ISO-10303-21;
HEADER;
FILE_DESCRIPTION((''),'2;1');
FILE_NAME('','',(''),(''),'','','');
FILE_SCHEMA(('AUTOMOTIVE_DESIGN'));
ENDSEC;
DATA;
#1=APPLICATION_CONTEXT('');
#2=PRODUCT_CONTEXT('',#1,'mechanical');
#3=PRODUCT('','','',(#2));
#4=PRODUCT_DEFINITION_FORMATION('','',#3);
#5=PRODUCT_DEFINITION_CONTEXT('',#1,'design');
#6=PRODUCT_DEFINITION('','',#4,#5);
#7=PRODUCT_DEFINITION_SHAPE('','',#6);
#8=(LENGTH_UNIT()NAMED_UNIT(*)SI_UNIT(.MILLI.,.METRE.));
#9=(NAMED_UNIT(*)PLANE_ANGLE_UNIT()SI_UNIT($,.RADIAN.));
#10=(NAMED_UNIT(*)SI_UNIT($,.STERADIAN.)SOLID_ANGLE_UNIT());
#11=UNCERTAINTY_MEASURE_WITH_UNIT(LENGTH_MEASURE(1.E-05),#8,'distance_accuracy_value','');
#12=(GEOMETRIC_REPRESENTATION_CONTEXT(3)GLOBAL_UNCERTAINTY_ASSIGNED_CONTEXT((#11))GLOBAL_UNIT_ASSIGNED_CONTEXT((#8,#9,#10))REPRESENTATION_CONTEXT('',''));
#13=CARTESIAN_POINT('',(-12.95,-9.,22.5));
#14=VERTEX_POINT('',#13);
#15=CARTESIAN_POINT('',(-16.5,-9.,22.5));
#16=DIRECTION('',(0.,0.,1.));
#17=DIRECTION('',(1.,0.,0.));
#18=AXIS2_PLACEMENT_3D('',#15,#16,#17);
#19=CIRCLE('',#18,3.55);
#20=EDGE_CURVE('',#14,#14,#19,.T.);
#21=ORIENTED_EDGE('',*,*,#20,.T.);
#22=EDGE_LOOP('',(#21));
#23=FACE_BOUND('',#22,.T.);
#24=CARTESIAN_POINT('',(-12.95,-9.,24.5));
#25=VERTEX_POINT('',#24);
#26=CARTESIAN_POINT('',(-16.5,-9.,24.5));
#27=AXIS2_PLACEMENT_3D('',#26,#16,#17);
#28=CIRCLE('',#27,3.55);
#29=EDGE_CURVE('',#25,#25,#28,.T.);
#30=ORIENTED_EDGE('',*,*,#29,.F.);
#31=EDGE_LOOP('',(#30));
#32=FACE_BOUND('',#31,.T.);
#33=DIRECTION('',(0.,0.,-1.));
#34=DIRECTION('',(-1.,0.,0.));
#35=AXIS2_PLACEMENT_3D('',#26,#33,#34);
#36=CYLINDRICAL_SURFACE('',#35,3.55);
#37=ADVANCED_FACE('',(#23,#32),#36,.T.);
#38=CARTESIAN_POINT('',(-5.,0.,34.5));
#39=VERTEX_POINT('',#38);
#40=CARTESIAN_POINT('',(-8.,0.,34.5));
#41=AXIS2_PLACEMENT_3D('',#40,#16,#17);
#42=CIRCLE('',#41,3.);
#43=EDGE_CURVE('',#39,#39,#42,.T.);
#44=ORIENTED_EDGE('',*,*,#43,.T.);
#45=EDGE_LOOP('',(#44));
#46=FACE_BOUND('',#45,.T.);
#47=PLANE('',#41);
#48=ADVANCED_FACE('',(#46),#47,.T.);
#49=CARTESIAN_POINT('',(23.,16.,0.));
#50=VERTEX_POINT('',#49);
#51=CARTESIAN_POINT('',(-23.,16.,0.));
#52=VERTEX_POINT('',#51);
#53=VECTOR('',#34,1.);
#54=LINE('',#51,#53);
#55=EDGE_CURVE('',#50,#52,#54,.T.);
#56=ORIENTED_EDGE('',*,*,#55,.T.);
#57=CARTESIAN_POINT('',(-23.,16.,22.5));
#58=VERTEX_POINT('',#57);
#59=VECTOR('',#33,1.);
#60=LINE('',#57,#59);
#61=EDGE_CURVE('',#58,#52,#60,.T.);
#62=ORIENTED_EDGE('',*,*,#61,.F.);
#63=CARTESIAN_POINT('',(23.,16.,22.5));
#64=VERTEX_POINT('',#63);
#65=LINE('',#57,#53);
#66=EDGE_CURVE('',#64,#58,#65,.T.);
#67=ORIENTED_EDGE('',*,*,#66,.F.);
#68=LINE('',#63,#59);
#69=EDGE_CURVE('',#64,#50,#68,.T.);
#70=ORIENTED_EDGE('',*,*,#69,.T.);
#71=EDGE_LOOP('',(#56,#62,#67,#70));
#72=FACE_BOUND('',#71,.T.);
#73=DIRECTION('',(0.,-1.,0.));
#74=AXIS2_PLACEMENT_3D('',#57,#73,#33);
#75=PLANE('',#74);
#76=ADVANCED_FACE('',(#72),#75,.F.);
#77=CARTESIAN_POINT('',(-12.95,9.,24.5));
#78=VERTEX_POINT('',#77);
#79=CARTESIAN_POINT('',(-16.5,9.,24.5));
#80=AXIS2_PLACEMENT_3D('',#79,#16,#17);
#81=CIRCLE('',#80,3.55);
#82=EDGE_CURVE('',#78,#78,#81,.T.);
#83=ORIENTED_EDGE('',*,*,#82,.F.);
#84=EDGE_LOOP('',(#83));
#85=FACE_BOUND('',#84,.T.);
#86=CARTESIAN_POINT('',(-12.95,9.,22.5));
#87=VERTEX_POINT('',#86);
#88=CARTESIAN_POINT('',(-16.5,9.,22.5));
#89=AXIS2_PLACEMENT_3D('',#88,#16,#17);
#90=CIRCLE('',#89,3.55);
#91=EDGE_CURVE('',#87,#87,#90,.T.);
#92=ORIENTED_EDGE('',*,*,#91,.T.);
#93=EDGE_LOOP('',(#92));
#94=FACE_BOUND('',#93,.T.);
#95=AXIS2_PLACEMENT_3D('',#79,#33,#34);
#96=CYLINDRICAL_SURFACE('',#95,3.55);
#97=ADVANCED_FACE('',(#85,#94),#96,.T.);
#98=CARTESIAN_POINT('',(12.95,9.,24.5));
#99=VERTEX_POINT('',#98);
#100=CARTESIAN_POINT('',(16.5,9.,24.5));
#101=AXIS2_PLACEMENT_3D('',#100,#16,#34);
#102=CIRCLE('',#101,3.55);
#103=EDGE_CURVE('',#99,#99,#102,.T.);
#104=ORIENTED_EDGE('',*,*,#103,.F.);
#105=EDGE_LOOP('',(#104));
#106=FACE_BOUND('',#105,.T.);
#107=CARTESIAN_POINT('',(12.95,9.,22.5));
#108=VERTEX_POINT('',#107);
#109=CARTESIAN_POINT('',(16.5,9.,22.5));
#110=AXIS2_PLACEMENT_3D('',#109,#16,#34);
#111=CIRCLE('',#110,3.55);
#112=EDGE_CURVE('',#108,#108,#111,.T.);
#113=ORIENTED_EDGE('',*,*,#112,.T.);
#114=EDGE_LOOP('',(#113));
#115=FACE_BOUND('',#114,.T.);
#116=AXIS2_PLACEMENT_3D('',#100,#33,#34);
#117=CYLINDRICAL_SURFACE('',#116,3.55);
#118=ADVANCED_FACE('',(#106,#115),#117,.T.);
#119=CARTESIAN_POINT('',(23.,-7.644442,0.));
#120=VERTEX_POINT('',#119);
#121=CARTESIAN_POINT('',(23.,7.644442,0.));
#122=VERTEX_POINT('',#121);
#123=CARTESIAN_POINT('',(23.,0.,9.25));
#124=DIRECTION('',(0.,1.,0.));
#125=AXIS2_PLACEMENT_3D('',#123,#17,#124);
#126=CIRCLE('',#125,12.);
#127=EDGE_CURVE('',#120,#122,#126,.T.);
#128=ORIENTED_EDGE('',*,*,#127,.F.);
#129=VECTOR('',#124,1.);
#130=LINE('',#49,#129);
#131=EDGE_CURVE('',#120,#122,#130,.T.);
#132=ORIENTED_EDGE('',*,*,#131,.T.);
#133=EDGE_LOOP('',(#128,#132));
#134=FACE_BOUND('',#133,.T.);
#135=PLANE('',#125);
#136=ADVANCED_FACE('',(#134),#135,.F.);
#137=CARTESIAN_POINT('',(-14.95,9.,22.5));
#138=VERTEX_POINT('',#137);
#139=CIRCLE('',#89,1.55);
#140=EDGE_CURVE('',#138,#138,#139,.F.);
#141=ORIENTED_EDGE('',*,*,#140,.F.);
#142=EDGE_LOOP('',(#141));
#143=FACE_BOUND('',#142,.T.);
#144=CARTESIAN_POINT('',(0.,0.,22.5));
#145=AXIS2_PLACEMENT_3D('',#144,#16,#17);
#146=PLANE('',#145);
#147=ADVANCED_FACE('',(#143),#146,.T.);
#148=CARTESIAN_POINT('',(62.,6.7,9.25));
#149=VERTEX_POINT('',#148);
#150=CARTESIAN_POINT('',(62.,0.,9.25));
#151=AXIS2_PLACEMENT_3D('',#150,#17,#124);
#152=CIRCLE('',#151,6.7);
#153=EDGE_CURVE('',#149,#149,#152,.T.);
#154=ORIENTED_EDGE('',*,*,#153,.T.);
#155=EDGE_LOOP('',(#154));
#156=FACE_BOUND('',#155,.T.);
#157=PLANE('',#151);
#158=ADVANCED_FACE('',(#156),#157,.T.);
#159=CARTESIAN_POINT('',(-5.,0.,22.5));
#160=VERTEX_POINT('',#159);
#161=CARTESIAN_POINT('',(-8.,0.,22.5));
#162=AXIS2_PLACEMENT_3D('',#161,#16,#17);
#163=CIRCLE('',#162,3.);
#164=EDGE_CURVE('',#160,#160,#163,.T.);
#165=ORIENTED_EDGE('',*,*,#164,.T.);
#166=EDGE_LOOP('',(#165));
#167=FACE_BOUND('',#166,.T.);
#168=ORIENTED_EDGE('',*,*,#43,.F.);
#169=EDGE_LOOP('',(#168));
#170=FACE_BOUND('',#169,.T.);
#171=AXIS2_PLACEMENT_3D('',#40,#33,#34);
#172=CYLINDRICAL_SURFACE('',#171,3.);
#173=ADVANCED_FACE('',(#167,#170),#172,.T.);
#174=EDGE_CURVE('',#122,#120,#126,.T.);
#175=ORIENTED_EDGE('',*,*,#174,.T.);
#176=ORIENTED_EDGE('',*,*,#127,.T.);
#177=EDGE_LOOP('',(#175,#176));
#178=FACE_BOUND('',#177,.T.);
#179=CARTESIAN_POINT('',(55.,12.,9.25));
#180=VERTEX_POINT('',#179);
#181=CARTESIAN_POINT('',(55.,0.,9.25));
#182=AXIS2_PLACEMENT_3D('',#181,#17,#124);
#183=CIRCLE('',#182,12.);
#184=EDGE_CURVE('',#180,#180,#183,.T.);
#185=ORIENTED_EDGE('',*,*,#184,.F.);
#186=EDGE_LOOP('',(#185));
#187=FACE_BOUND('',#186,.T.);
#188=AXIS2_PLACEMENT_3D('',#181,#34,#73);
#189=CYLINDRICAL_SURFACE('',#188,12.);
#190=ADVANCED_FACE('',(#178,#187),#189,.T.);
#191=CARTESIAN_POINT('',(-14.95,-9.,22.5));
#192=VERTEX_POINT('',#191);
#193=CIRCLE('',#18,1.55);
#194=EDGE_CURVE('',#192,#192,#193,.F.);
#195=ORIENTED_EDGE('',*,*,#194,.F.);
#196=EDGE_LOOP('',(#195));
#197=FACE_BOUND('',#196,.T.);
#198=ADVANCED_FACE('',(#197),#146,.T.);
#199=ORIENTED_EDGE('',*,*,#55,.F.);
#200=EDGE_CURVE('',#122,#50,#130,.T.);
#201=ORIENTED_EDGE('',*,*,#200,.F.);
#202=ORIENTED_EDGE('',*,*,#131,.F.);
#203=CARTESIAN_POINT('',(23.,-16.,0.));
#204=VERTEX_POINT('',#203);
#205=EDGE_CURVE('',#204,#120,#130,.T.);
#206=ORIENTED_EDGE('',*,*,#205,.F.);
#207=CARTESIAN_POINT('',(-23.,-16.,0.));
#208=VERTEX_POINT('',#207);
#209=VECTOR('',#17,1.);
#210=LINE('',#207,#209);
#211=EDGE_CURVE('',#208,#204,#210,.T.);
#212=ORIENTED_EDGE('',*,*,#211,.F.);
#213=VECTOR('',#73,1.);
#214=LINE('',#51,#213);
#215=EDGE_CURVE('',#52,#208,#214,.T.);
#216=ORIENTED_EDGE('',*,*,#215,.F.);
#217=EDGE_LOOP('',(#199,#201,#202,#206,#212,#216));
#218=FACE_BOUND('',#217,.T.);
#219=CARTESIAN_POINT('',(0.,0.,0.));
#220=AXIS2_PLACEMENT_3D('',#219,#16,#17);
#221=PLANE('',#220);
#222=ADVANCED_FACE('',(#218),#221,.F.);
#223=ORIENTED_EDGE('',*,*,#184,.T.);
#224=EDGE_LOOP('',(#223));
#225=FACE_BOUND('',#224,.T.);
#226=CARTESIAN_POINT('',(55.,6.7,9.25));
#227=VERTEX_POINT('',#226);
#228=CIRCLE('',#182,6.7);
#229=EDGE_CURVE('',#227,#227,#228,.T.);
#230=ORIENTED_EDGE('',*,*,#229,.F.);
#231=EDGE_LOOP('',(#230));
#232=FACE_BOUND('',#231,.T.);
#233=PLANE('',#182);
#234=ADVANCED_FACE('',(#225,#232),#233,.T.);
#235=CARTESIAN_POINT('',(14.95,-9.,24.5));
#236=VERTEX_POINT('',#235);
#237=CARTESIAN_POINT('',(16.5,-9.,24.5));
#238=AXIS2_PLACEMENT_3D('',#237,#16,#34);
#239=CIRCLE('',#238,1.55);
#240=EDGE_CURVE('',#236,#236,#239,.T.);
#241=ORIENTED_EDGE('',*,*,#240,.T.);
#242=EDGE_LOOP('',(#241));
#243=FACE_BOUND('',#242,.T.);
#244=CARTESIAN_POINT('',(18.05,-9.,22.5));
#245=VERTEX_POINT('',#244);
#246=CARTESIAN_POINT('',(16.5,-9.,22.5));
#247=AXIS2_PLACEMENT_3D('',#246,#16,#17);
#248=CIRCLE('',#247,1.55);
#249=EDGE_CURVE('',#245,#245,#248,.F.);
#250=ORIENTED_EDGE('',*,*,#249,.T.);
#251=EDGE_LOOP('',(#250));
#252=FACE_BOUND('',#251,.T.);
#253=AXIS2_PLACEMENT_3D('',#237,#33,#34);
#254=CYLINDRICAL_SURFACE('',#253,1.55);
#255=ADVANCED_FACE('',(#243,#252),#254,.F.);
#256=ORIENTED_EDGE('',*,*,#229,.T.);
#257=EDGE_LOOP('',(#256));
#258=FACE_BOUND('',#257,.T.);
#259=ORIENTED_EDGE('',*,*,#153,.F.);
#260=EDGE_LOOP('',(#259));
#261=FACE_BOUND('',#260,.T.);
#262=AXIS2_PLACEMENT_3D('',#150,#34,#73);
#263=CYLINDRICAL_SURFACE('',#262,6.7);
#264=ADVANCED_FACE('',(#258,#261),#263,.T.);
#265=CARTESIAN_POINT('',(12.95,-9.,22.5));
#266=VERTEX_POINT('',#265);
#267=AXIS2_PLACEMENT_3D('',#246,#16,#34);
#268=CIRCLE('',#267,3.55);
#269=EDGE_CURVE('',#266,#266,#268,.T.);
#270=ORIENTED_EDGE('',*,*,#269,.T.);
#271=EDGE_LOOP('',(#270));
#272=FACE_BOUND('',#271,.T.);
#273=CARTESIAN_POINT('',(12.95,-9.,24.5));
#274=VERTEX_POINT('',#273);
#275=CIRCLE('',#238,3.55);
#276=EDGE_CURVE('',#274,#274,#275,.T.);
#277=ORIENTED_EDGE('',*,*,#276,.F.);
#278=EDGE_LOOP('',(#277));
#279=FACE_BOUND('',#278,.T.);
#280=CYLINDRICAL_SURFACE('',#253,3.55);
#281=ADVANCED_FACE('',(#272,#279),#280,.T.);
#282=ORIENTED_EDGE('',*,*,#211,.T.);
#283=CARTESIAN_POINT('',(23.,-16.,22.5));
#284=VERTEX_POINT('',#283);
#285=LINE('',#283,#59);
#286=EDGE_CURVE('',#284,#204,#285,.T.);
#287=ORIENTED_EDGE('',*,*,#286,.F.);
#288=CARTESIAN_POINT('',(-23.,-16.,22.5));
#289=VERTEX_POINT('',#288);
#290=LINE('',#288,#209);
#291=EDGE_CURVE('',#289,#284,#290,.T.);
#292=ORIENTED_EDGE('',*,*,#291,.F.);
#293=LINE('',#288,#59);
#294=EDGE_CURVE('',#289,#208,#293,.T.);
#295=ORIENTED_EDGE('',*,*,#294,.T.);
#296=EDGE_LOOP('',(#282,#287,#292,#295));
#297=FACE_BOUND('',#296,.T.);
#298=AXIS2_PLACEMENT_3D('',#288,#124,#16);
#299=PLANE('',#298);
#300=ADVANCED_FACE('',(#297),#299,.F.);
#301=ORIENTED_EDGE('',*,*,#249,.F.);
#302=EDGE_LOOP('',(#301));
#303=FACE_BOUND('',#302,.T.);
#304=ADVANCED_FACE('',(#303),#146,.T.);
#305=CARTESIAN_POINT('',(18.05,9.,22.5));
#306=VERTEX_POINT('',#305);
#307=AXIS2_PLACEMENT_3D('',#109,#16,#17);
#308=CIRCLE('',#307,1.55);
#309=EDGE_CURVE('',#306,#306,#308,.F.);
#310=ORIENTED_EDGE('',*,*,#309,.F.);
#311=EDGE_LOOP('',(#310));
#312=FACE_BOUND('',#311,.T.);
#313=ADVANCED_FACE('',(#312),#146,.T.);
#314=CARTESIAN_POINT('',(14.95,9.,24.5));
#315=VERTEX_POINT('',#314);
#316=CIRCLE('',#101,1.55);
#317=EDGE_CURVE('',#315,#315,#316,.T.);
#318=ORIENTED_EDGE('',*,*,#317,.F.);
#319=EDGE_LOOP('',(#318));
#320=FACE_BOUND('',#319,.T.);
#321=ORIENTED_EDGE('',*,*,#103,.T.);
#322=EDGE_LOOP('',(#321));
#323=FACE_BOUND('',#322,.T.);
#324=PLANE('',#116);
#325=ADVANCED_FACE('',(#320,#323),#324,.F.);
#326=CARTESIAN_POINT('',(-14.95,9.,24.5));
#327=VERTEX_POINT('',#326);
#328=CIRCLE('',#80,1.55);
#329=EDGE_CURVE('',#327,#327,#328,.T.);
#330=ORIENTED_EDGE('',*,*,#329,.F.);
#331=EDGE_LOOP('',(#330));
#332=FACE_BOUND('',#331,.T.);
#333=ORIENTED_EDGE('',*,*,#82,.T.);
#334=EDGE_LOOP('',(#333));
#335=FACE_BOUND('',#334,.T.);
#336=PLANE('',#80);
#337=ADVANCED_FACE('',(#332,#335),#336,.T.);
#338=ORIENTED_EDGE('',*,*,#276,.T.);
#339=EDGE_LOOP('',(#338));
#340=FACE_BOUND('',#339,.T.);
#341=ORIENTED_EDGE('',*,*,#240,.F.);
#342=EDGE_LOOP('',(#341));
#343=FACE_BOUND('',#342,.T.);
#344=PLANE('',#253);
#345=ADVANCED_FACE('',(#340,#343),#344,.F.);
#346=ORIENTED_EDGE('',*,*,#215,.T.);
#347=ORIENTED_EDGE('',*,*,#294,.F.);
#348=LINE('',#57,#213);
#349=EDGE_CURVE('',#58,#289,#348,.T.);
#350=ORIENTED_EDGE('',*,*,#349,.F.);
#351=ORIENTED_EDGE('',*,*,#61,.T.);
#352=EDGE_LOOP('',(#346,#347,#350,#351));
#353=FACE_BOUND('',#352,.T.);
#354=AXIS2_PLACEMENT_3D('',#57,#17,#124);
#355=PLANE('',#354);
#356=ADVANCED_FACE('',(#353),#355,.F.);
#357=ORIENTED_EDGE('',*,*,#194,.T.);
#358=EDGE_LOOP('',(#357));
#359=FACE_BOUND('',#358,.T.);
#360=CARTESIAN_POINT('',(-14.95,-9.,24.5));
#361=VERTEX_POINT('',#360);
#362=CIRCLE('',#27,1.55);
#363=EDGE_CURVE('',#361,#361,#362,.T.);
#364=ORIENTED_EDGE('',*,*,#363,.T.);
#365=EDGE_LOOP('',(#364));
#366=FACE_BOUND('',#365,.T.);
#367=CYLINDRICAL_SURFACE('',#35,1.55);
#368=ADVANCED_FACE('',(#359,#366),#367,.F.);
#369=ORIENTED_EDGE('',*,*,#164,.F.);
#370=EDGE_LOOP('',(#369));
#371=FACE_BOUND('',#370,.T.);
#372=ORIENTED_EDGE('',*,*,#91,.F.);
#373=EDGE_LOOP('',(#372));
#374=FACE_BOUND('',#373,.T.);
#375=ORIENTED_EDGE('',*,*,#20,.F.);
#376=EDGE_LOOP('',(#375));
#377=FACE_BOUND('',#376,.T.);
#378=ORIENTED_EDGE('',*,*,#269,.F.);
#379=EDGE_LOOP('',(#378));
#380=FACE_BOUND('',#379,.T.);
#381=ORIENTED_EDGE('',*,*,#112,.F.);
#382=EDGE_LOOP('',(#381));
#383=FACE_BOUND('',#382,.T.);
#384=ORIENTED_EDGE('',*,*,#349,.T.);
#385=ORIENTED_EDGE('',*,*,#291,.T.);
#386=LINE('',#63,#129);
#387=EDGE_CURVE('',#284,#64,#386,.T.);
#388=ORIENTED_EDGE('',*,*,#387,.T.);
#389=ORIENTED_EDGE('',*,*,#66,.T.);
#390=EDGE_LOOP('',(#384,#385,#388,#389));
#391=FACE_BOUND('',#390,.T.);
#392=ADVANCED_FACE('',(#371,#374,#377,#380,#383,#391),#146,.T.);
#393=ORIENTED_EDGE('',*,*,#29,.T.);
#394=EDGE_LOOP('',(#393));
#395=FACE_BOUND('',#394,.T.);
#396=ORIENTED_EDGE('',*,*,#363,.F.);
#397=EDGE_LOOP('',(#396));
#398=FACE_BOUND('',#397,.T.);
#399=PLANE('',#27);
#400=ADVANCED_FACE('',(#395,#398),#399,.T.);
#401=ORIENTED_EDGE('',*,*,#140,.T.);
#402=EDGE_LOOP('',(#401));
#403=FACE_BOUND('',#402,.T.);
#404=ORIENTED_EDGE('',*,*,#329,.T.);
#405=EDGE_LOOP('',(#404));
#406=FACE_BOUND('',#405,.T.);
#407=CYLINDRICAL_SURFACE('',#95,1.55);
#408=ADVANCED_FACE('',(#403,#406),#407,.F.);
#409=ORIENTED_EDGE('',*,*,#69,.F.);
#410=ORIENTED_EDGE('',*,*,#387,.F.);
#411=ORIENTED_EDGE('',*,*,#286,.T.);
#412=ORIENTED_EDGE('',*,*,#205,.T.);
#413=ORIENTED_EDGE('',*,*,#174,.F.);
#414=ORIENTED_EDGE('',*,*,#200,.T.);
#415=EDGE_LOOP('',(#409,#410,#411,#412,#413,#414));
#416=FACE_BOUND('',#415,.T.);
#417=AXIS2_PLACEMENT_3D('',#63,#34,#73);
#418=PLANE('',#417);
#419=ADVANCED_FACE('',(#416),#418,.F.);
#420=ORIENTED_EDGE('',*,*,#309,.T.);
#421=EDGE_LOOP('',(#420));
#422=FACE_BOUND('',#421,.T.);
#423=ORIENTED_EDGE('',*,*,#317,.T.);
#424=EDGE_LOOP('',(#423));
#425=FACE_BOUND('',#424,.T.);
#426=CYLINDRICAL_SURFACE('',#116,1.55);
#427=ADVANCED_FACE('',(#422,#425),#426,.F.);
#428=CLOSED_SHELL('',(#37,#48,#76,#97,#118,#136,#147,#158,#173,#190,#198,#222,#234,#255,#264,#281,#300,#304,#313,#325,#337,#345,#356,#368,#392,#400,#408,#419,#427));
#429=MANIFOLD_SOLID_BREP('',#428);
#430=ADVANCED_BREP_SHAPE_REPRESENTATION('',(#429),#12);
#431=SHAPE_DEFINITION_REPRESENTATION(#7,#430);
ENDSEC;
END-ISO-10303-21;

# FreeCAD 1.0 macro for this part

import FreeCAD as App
import Part
import Sketcher
Q = App.Units.Quantity

doc = App.newDocument("Part")
body = doc.addObject("PartDesign::Body", "Body")

# Sketch on XY plane
sketch1 = body.newObject("Sketcher::SketchObject", "Sketch")
sketch1.AttachmentSupport = (doc.getObject("XY_Plane"), [""])
sketch1.MapMode = "FlatFace"
sketch1.addGeometry(Part.LineSegment(App.Vector(-23, 16, 0), App.Vector(-23, -16, 0)), False)
sketch1.addGeometry(Part.LineSegment(App.Vector(-23, -16, 0), App.Vector(23, -16, 0)), False)
sketch1.addGeometry(Part.LineSegment(App.Vector(23, -16, 0), App.Vector(23, 16, 0)), False)
sketch1.addGeometry(Part.LineSegment(App.Vector(23, 16, 0), App.Vector(-23, 16, 0)), False)
sketch1.addConstraint(Sketcher.Constraint("Coincident", 0, 2, 1, 1))
sketch1.addConstraint(Sketcher.Constraint("Coincident", 1, 2, 2, 1))
sketch1.addConstraint(Sketcher.Constraint("Coincident", 2, 2, 3, 1))
sketch1.addConstraint(Sketcher.Constraint("Coincident", 3, 2, 0, 1))
sketch1.addConstraint(Sketcher.Constraint("Vertical", 0))
sketch1.addConstraint(Sketcher.Constraint("Horizontal", 1))
sketch1.addConstraint(Sketcher.Constraint("Vertical", 2))
sketch1.addConstraint(Sketcher.Constraint("Horizontal", 3))
sketch1.addConstraint(Sketcher.Constraint("Symmetric", 0, 2, 2, 2, -1, 1))
sketch1.addConstraint(Sketcher.Constraint("DistanceX", 1, 1, 1, 2, Q("46 mm")))
sketch1.addConstraint(Sketcher.Constraint("DistanceY", 0, 2, 0, 1, Q("32 mm")))
pad1 = body.newObject("PartDesign::Pad", "Pad")
pad1.Profile = sketch1
pad1.Length = 22.5

# Sketch on XY plane
sketch2 = body.newObject("Sketcher::SketchObject", "Sketch001")
sketch2.AttachmentSupport = (doc.getObject("XY_Plane"), [""])
sketch2.MapMode = "FlatFace"
sketch2.AttachmentOffset = App.Placement(App.Vector(0, 0, 22.5), App.Rotation())
sketch2.addGeometry(Part.Circle(App.Vector(-8, 0, 0), App.Vector(0, 0, 1), 3), False)
sketch2.addConstraint(Sketcher.Constraint("PointOnObject", 0, 3, -1))
sketch2.addConstraint(Sketcher.Constraint("Diameter", 0, Q("6 mm")))
sketch2.addConstraint(Sketcher.Constraint("DistanceX", 0, 3, -1, 1, Q("8 mm")))
pad2 = body.newObject("PartDesign::Pad", "Pad001")
pad2.Profile = sketch2
pad2.Length = 12

# Sketch on XY plane
sketch3 = body.newObject("Sketcher::SketchObject", "Sketch002")
sketch3.AttachmentSupport = (doc.getObject("XY_Plane"), [""])
sketch3.MapMode = "FlatFace"
sketch3.AttachmentOffset = App.Placement(App.Vector(0, 0, 22.5), App.Rotation())
sketch3.addGeometry(Part.Circle(App.Vector(-16.5, 9, 0), App.Vector(0, 0, 1), 3.55), False)
sketch3.addGeometry(Part.Circle(App.Vector(-16.5, 9, 0), App.Vector(0, 0, 1), 1.55), False)
sketch3.addGeometry(Part.Circle(App.Vector(-16.5, -9, 0), App.Vector(0, 0, 1), 3.55), False)
sketch3.addGeometry(Part.Circle(App.Vector(-16.5, -9, 0), App.Vector(0, 0, 1), 1.55), False)
sketch3.addGeometry(Part.Circle(App.Vector(16.5, -9, 0), App.Vector(0, 0, 1), 3.55), False)
sketch3.addGeometry(Part.Circle(App.Vector(16.5, -9, 0), App.Vector(0, 0, 1), 1.55), False)
sketch3.addGeometry(Part.Circle(App.Vector(16.5, 9, 0), App.Vector(0, 0, 1), 3.55), False)
sketch3.addGeometry(Part.Circle(App.Vector(16.5, 9, 0), App.Vector(0, 0, 1), 1.55), False)
sketch3.addConstraint(Sketcher.Constraint("Coincident", 1, 3, 0, 3))
sketch3.addConstraint(Sketcher.Constraint("Coincident", 3, 3, 2, 3))
sketch3.addConstraint(Sketcher.Constraint("Coincident", 5, 3, 4, 3))
sketch3.addConstraint(Sketcher.Constraint("Coincident", 7, 3, 6, 3))
sketch3.addConstraint(Sketcher.Constraint("Equal", 0, 2))
sketch3.addConstraint(Sketcher.Constraint("Equal", 1, 3))
sketch3.addConstraint(Sketcher.Constraint("Equal", 2, 4))
sketch3.addConstraint(Sketcher.Constraint("Equal", 3, 5))
sketch3.addConstraint(Sketcher.Constraint("Equal", 4, 6))
sketch3.addConstraint(Sketcher.Constraint("Equal", 5, 7))
sketch3.addConstraint(Sketcher.Constraint("Symmetric", 0, 3, 4, 3, -1, 1))
sketch3.addConstraint(Sketcher.Constraint("Symmetric", 2, 3, 6, 3, -1, 1))
sketch3.addConstraint(Sketcher.Constraint("Symmetric", 2, 3, 4, 3, -2))
sketch3.addConstraint(Sketcher.Constraint("Diameter", 0, Q("7.1 mm")))
sketch3.addConstraint(Sketcher.Constraint("Diameter", 1, Q("3.1 mm")))
sketch3.addConstraint(Sketcher.Constraint("DistanceY", -1, 1, 0, 3, Q("9 mm")))
sketch3.addConstraint(Sketcher.Constraint("DistanceX", 2, 3, 4, 3, Q("33 mm")))
pad3 = body.newObject("PartDesign::Pad", "Pad002")
pad3.Profile = sketch3
pad3.Length = 2

# Sketch on YZ plane
sketch4 = body.newObject("Sketcher::SketchObject", "Sketch003")
sketch4.AttachmentSupport = (doc.getObject("YZ_Plane"), [""])
sketch4.MapMode = "FlatFace"
sketch4.AttachmentOffset = App.Placement(App.Vector(0, 0, 23), App.Rotation())
sketch4.addGeometry(Part.Circle(App.Vector(0, 9.25, 0), App.Vector(0, 0, 1), 12), False)
sketch4.addConstraint(Sketcher.Constraint("PointOnObject", 0, 3, -2))
sketch4.addConstraint(Sketcher.Constraint("Diameter", 0, Q("24 mm")))
sketch4.addConstraint(Sketcher.Constraint("DistanceY", -1, 1, 0, 3, Q("9.25 mm")))
pad4 = body.newObject("PartDesign::Pad", "Pad003")
pad4.Profile = sketch4
pad4.Length = 32

# Sketch on YZ plane
sketch5 = body.newObject("Sketcher::SketchObject", "Sketch004")
sketch5.AttachmentSupport = (doc.getObject("YZ_Plane"), [""])
sketch5.MapMode = "FlatFace"
sketch5.AttachmentOffset = App.Placement(App.Vector(0, 0, 55), App.Rotation())
sketch5.addGeometry(Part.Circle(App.Vector(0, 9.25, 0), App.Vector(0, 0, 1), 6.7), False)
sketch5.addConstraint(Sketcher.Constraint("PointOnObject", 0, 3, -2))
sketch5.addConstraint(Sketcher.Constraint("Diameter", 0, Q("13.4 mm")))
sketch5.addConstraint(Sketcher.Constraint("DistanceY", -1, 1, 0, 3, Q("9.25 mm")))
pad5 = body.newObject("PartDesign::Pad", "Pad004")
pad5.Profile = sketch5
pad5.Length = 7

doc.recompute()
